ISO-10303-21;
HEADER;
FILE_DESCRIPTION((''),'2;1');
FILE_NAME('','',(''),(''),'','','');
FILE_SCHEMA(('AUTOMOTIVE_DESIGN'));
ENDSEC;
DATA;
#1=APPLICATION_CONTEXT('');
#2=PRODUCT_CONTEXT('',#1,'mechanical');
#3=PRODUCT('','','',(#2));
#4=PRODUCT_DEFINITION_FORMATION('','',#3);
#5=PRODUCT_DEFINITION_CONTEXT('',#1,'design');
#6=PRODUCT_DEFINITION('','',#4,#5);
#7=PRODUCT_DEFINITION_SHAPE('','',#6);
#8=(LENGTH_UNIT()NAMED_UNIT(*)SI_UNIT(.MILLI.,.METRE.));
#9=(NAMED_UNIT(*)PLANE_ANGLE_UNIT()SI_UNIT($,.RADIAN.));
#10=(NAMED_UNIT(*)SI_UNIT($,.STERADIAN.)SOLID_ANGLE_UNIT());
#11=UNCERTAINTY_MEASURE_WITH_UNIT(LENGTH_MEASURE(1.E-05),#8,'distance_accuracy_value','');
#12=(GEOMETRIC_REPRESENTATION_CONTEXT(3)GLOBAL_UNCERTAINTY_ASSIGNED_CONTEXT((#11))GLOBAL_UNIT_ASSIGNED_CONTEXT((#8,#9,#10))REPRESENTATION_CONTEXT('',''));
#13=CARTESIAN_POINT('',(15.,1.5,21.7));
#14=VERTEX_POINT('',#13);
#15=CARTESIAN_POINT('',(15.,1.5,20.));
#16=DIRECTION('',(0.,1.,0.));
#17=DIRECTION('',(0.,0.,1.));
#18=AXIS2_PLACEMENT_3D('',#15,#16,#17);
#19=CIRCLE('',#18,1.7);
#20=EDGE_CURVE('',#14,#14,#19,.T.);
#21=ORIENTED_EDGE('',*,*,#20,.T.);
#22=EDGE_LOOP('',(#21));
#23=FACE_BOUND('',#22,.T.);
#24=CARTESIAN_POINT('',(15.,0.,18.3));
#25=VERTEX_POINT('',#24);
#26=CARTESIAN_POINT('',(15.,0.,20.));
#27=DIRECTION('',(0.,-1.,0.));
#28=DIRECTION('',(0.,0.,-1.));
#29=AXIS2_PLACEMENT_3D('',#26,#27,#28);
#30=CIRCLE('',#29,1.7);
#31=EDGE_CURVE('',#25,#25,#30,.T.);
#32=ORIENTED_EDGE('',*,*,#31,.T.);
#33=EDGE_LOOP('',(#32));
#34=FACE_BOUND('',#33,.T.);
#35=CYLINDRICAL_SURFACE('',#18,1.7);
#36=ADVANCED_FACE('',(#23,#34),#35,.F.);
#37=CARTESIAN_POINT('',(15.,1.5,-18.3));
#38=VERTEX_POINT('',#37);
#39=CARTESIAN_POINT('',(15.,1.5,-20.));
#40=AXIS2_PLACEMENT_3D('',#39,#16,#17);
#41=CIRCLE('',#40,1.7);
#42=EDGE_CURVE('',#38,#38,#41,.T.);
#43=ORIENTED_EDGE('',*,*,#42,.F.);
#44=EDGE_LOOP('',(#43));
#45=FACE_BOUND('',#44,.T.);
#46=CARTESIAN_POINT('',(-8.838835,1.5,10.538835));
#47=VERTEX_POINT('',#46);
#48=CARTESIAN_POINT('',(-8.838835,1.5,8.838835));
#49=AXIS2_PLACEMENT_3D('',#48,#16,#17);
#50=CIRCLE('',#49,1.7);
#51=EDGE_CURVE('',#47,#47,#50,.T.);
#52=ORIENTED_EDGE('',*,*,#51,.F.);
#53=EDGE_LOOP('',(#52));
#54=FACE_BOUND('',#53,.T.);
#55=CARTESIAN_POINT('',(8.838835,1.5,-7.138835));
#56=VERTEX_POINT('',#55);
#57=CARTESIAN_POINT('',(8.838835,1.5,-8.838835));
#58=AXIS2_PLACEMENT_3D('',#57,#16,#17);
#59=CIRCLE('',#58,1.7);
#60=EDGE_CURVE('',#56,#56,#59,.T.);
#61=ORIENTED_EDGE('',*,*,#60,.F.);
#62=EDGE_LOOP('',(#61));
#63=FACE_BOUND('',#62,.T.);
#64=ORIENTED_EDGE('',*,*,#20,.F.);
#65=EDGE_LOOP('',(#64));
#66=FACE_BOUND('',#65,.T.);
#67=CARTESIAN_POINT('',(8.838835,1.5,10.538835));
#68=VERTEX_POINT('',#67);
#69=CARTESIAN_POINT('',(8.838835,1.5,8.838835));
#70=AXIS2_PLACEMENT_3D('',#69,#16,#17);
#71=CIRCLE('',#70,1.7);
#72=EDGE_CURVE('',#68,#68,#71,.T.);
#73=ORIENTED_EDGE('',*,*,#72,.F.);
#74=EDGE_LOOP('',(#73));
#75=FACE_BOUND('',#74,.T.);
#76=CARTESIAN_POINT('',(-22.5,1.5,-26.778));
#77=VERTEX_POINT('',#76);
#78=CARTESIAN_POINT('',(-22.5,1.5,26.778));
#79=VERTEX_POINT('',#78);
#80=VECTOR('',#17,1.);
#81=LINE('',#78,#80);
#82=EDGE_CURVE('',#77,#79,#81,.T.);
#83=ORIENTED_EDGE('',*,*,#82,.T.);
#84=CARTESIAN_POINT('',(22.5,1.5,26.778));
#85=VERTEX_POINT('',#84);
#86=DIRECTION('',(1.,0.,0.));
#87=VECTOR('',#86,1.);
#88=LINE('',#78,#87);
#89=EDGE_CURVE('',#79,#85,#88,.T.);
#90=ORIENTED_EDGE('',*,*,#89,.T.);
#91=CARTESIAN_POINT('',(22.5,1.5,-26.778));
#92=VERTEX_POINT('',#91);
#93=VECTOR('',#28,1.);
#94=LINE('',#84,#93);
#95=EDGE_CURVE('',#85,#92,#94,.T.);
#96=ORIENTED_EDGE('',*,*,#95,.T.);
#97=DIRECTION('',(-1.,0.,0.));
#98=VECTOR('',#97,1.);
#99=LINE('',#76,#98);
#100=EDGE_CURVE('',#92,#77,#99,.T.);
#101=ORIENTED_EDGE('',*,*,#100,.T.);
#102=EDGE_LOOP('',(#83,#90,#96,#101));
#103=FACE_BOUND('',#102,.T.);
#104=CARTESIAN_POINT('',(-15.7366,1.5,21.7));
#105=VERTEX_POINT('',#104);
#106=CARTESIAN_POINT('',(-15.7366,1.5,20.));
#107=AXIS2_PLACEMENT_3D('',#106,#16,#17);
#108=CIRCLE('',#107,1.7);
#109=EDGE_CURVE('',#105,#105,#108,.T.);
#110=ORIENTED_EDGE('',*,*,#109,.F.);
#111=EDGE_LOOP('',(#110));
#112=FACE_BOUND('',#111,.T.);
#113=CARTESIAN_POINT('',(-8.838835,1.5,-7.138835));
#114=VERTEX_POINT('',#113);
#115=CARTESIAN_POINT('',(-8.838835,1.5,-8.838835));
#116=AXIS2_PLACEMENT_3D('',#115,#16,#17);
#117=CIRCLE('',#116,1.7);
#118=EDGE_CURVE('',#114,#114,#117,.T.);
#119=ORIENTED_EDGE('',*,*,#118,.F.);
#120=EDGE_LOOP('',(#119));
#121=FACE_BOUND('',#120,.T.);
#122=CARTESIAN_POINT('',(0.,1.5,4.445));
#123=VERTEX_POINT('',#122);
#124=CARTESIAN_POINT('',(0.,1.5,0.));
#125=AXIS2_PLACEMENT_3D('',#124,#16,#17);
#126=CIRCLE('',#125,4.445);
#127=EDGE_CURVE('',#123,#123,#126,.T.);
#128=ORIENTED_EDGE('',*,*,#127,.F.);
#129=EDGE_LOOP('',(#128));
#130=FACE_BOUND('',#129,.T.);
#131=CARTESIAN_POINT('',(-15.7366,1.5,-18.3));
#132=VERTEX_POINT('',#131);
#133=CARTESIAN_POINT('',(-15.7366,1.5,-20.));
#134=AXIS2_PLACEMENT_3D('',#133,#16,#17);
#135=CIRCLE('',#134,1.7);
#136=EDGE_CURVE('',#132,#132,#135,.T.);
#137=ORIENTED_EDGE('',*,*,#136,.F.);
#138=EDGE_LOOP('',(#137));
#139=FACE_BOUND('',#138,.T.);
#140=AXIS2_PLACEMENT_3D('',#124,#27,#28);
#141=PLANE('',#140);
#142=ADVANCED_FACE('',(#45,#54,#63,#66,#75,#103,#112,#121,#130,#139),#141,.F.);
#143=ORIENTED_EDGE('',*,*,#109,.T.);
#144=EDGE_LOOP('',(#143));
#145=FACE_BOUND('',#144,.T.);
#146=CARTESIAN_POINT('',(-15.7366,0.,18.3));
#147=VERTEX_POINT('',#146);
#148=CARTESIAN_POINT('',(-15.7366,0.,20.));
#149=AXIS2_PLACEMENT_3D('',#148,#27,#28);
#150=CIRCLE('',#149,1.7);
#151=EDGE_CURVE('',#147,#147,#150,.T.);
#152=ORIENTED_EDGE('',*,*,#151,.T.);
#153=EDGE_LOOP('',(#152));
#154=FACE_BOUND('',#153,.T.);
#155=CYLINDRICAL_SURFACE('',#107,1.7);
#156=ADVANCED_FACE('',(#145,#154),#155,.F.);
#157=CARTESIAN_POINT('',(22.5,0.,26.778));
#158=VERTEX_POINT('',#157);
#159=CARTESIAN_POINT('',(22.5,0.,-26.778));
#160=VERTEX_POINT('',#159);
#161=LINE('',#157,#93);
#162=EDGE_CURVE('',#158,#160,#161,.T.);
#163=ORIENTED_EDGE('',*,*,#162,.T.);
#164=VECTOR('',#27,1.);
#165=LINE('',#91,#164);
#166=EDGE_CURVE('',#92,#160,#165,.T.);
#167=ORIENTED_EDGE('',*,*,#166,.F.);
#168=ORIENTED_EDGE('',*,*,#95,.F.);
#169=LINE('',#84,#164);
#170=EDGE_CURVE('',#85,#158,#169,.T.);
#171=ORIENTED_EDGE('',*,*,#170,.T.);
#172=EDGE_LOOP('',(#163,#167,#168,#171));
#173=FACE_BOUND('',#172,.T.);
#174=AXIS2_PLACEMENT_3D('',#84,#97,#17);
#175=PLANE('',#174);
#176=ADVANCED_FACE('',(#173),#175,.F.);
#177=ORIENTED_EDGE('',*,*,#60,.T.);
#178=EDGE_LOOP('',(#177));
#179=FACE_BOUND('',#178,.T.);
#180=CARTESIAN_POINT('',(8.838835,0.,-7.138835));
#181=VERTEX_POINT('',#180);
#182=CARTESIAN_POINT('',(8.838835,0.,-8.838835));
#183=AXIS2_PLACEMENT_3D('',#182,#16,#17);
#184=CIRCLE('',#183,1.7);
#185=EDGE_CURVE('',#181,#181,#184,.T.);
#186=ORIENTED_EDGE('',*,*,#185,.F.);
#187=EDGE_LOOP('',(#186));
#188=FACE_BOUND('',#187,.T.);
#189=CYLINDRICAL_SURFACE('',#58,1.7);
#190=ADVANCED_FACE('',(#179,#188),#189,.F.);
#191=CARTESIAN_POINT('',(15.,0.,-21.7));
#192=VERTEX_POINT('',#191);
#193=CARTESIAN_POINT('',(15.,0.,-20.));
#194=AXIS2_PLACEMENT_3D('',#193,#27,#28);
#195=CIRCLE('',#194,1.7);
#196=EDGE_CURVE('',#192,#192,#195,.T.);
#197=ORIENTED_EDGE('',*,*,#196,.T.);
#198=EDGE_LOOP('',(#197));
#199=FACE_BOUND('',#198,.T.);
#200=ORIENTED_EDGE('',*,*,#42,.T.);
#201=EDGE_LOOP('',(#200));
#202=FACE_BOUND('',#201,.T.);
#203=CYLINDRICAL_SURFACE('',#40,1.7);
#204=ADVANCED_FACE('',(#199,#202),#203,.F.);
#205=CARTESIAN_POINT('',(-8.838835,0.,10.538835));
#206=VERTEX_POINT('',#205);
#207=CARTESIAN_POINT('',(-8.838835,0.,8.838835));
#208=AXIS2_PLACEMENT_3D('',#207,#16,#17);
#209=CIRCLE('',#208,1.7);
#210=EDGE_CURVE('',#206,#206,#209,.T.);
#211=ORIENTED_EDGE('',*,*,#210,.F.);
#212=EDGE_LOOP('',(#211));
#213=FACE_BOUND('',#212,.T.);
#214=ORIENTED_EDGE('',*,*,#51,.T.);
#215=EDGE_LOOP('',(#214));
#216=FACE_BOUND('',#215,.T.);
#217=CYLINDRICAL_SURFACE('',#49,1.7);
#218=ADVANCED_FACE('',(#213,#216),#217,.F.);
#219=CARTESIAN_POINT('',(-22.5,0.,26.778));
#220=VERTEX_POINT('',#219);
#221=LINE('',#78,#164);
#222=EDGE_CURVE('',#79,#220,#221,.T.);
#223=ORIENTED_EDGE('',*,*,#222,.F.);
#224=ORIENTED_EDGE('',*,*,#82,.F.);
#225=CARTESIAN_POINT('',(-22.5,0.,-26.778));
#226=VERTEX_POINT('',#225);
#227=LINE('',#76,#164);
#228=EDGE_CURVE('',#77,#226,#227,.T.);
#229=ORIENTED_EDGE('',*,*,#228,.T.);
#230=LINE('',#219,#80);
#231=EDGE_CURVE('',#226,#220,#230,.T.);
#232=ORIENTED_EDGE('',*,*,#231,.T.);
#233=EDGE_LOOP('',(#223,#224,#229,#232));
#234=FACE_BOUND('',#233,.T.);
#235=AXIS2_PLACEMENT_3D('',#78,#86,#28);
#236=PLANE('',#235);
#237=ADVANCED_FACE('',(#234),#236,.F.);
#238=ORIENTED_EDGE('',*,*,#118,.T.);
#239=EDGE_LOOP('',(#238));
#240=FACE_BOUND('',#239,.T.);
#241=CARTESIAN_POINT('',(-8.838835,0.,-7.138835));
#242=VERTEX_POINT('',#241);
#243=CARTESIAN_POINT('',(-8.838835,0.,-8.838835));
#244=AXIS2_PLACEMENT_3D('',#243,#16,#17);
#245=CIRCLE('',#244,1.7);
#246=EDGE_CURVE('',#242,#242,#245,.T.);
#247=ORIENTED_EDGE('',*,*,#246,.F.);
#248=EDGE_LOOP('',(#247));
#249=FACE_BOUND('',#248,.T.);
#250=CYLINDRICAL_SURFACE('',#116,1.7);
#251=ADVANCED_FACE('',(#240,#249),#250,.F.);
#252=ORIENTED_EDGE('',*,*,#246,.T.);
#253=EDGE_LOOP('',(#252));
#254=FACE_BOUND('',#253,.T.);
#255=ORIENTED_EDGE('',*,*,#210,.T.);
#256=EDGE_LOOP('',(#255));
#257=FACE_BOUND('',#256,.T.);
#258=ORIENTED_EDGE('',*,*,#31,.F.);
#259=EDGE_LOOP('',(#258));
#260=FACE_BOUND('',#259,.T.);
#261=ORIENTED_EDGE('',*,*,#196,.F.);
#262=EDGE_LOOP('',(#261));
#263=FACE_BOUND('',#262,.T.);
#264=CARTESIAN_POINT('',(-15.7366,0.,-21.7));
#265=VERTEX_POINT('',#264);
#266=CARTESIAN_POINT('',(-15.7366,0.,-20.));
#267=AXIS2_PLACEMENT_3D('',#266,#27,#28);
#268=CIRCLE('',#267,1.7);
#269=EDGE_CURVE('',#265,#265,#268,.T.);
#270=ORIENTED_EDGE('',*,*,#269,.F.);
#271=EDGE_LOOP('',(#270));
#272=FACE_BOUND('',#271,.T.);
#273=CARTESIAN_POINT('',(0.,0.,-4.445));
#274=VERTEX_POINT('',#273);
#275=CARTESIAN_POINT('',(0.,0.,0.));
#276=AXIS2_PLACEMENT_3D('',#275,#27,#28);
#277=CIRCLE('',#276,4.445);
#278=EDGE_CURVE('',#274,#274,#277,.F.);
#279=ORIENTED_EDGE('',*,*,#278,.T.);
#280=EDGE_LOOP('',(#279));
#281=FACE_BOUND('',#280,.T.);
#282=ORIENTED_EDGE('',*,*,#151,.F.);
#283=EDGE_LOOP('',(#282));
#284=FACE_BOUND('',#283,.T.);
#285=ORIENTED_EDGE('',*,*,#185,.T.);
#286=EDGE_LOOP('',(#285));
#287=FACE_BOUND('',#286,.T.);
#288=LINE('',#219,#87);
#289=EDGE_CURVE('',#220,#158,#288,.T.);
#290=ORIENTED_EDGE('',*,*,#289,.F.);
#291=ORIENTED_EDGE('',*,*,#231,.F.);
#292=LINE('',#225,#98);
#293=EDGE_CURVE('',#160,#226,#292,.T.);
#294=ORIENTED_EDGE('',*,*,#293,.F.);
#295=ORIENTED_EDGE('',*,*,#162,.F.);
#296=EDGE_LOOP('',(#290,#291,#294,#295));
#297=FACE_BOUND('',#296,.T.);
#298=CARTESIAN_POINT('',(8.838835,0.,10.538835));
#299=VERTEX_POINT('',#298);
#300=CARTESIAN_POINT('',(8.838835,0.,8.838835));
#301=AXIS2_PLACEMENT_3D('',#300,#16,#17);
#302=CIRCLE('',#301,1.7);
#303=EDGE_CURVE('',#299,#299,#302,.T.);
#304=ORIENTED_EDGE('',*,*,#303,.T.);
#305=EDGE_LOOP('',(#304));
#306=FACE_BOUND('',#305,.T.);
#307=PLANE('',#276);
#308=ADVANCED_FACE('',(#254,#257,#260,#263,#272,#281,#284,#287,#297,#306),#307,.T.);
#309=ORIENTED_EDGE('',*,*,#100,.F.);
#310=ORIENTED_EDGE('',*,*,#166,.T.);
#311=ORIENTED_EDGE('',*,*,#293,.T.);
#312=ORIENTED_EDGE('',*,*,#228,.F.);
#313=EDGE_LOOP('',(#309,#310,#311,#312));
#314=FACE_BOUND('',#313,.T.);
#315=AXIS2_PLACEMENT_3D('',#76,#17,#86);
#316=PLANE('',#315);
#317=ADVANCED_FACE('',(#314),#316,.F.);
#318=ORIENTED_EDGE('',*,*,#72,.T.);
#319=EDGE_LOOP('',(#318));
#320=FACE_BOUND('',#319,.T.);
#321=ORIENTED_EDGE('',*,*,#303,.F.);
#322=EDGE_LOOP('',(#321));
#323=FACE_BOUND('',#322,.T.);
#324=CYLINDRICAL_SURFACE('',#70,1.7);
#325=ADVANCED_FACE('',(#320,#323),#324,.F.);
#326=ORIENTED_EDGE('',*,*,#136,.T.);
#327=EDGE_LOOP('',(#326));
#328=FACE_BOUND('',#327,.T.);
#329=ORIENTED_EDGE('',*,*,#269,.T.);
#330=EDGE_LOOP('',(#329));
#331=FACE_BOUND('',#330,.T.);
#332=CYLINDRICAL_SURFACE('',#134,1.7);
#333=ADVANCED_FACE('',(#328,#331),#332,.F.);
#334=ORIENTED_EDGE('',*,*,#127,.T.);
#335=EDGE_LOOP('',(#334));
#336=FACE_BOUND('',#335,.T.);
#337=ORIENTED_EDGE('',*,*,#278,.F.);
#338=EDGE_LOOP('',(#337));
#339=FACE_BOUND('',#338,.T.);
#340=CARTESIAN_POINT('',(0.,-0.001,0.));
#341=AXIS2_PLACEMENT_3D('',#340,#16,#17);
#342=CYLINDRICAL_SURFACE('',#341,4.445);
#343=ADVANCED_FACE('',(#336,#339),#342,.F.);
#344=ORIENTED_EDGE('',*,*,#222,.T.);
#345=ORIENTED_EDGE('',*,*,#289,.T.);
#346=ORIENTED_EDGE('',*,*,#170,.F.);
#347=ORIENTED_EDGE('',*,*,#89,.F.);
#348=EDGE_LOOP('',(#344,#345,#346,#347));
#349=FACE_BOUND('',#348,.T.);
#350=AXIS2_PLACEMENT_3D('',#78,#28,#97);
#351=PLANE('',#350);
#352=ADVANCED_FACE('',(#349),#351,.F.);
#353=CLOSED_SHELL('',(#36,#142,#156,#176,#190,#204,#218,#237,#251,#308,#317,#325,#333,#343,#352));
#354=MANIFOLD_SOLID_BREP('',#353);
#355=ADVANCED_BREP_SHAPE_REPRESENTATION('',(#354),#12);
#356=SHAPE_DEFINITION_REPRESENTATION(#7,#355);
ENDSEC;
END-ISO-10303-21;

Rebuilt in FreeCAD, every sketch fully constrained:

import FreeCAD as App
import Part
import Sketcher


def add_polygon(sketch, points):
    """Adds a closed chain of lines whose ends are joined by coincident constraints."""
    first, n = sketch.GeometryCount, len(points)
    for a, b in zip(points, points[1:] + points[:1]):
        sketch.addGeometry(Part.LineSegment(App.Vector(*a, 0), App.Vector(*b, 0)), False)
    for i in range(n):
        sketch.addConstraint(Sketcher.Constraint("Coincident", first + i, 2, first + (i + 1) % n, 1))

doc = App.newDocument("Part")
params = doc.addObject("Spreadsheet::Sheet", "Params")
for row, (alias, value) in enumerate([
    ("sketch1_width", "45 mm"),
    ("pad1_length", "1.5 mm"),
    ("sketch2_diameter", "3.4 mm"),
    ("hole_diameter", "3.4 mm"),
    ("sketch3_diameter", "3.4 mm"),
    ("hole2_diameter", "3.4 mm"),
    ("sketch4_diameter", "8.89 mm"),
    ("pocket1_length", "1.5 mm"),
], start=1):
    params.set(f"A{row}", alias)
    params.set(f"B{row}", "=" + value)
    params.setAlias(f"B{row}", alias)

body = doc.addObject("PartDesign::Body", "Body")

# Sketch on XZ plane
sketch1 = doc.addObject("Sketcher::SketchObject", "Sketch")
body.addObject(sketch1)
sketch1.AttachmentSupport = (doc.XZ_Plane, [""])
sketch1.MapMode = "FlatFace"
add_polygon(sketch1, [(-22, -27), (-22, 27), (22, 27), (22, -27)])  # lines 0-3
sketch1.addConstraint([
    Sketcher.Constraint("Vertical", 0),
    Sketcher.Constraint("Horizontal", 1),
    Sketcher.Constraint("Vertical", 2),
    Sketcher.Constraint("Horizontal", 3),
    Sketcher.Constraint("Symmetric", 0, 2, 2, 2, -1, 1),
    Sketcher.Constraint("DistanceX", 1, 1, 1, 2, 45.0),
    Sketcher.Constraint("DistanceY", 0, 1, 0, 2, 53.556),
])
sketch1.setExpression("Constraints[9]", "Params.sketch1_width")
pad1 = doc.addObject("PartDesign::Pad", "Pad")
body.addObject(pad1)
pad1.Profile = sketch1
pad1.setExpression("Length", "Params.pad1_length")
pad1.Reversed = True

# Sketch on XZ plane
sketch2 = doc.addObject("Sketcher::SketchObject", "Sketch001")
body.addObject(sketch2)
sketch2.AttachmentSupport = (doc.XZ_Plane, [""])
sketch2.MapMode = "FlatFace"
sketch2.AttachmentOffset = App.Placement(App.Vector(0, 0, -1.5), App.Rotation())
sketch2.addGeometry([
    Part.Circle(App.Vector(-15.7, -20, 0), App.Vector(0, 0, 1), 1.7),  # 0
    Part.Circle(App.Vector(15, -20, 0), App.Vector(0, 0, 1), 1.7),  # 1
    Part.Circle(App.Vector(15, 20, 0), App.Vector(0, 0, 1), 1.7),  # 2
    Part.Circle(App.Vector(-15.7, 20, 0), App.Vector(0, 0, 1), 1.7),  # 3
    Part.Circle(App.Vector(0, 0, 0), App.Vector(0, 0, 1), 1.7),  # 4
], False)
sketch2.addConstraint([
    Sketcher.Constraint("Coincident", 4, 3, -1, 1),
    Sketcher.Constraint("Equal", 0, 1),
    Sketcher.Constraint("Equal", 1, 2),
    Sketcher.Constraint("Equal", 2, 3),
    Sketcher.Constraint("Equal", 3, 4),
    Sketcher.Constraint("Symmetric", 1, 3, 2, 3, -1),
    Sketcher.Constraint("Symmetric", 0, 3, 3, 3, -1),
    Sketcher.Constraint("Horizontal", 0, 3, 1, 3),
    Sketcher.Constraint("Diameter", 0, 3.4),
    Sketcher.Constraint("DistanceY", 0, 3, -1, 1, 20.0),
    Sketcher.Constraint("DistanceX", -1, 1, 1, 3, 15.0),
    Sketcher.Constraint("DistanceX", 0, 3, -1, 1, 15.7366),
])
sketch2.setExpression("Constraints[8]", "Params.sketch2_diameter")
doc.recompute()
hole = doc.addObject("PartDesign::Hole", "Hole")
body.addObject(hole)
hole.Profile = sketch2
hole.ThreadType = "None"
hole.setExpression("Diameter", "Params.hole_diameter")
hole.DepthType = "ThroughAll"
hole.Reversed = True

# Sketch on XZ plane
sketch3 = doc.addObject("Sketcher::SketchObject", "Sketch002")
body.addObject(sketch3)
sketch3.AttachmentSupport = (doc.XZ_Plane, [""])
sketch3.MapMode = "FlatFace"
sketch3.AttachmentOffset = App.Placement(App.Vector(0, 0, -1.5), App.Rotation())
sketch3.addGeometry([
    Part.Circle(App.Vector(-8.8, 8.8, 0), App.Vector(0, 0, 1), 1.7),
    Part.Circle(App.Vector(-8.8, -8.8, 0), App.Vector(0, 0, 1), 1.7),
    Part.Circle(App.Vector(8.8, 8.8, 0), App.Vector(0, 0, 1), 1.7),
    Part.Circle(App.Vector(8.8, -8.8, 0), App.Vector(0, 0, 1), 1.7),
], False)
sketch3.addConstraint([
    Sketcher.Constraint("Equal", 0, 1),
    Sketcher.Constraint("Equal", 1, 2),
    Sketcher.Constraint("Equal", 2, 3),
    Sketcher.Constraint("Symmetric", 1, 3, 2, 3, -1, 1),
    Sketcher.Constraint("Symmetric", 0, 3, 3, 3, -1, 1),
    Sketcher.Constraint("Symmetric", 0, 3, 2, 3, -2),
    Sketcher.Constraint("Diameter", 0, 3.4),
    Sketcher.Constraint("DistanceY", 1, 3, 0, 3, 17.67767),
    Sketcher.Constraint("DistanceX", 0, 3, 2, 3, 17.67767),
])
sketch3.setExpression("Constraints[6]", "Params.sketch3_diameter")
doc.recompute()
hole2 = doc.addObject("PartDesign::Hole", "Hole001")
body.addObject(hole2)
hole2.Profile = sketch3
hole2.ThreadType = "None"
hole2.setExpression("Diameter", "Params.hole2_diameter")
hole2.DepthType = "ThroughAll"
hole2.Reversed = True

# Sketch on XZ plane
sketch4 = doc.addObject("Sketcher::SketchObject", "Sketch003")
body.addObject(sketch4)
sketch4.AttachmentSupport = (doc.XZ_Plane, [""])
sketch4.MapMode = "FlatFace"
sketch4.AttachmentOffset = App.Placement(App.Vector(0, 0, -1.5), App.Rotation())
sketch4.addGeometry(Part.Circle(App.Vector(0, 0, 0), App.Vector(0, 0, 1), 4.4), False)
sketch4.addConstraint([
    Sketcher.Constraint("Coincident", 0, 3, -1, 1),
    Sketcher.Constraint("Diameter", 0, 8.89),
])
sketch4.setExpression("Constraints[1]", "Params.sketch4_diameter")
pocket1 = doc.addObject("PartDesign::Pocket", "Pocket")
body.addObject(pocket1)
pocket1.Profile = sketch4
pocket1.setExpression("Length", "Params.pocket1_length")
pocket1.Reversed = True

doc.recompute()
